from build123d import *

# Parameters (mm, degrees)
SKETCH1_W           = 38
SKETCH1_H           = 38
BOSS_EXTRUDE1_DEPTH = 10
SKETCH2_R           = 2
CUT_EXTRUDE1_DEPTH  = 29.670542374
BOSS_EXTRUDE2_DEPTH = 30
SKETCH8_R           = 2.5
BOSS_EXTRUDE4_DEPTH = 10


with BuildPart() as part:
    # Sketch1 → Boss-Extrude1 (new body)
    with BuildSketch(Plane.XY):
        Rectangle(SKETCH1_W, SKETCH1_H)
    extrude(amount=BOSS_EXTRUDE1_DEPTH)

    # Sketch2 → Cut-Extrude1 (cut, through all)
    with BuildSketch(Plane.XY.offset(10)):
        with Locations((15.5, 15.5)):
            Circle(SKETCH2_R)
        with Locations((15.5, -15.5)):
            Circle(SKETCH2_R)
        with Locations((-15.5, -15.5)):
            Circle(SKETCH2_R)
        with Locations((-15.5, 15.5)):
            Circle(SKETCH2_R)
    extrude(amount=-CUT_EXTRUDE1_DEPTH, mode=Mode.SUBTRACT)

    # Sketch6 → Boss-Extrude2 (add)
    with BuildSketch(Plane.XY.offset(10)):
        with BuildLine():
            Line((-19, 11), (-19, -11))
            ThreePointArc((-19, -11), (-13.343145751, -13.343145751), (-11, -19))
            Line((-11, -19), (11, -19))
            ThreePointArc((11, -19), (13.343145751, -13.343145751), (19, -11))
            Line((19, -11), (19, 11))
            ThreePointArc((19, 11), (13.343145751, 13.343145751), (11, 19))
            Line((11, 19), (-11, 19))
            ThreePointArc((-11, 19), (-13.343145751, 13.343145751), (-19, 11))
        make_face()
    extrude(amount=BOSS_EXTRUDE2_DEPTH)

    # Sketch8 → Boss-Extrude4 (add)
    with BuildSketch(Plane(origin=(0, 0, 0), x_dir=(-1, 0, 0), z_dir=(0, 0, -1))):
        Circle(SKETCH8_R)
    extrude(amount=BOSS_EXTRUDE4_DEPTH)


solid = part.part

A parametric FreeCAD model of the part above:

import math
import FreeCAD as App
import Part
import Sketcher
from FreeCAD import Vector
Q = App.Units.Quantity

doc = App.newDocument("Part")
params = doc.addObject("Spreadsheet::Sheet", "Params")
for row, (alias, value) in enumerate([
    ("sketch1_width", "38 mm"),
    ("pad1_length", "10 mm"),
    ("sketch2_diameter", "4 mm"),
    ("sketch3_radius", "8 mm"),
    ("sketch3_width", "22 mm"),
    ("pad2_length", "30 mm"),
    ("sketch4_diameter", "5 mm"),
    ("pad3_length", "10 mm"),
], start=1):
    params.set(f"A{row}", alias)
    params.set(f"B{row}", "=" + value)
    params.setAlias(f"B{row}", alias)

body = doc.addObject("PartDesign::Body", "Body")

# Sketch on XY plane
sketch1 = doc.addObject("Sketcher::SketchObject", "Sketch")
body.addObject(sketch1)
sketch1.AttachmentSupport = (doc.XY_Plane, [""])
sketch1.MapMode = "FlatFace"
sketch1.addGeometry(Part.LineSegment(Vector(-19, 19, 0), Vector(-19, -19, 0)), False)
sketch1.addGeometry(Part.LineSegment(Vector(-19, -19, 0), Vector(19, -19, 0)), False)
sketch1.addGeometry(Part.LineSegment(Vector(19, -19, 0), Vector(19, 19, 0)), False)
sketch1.addGeometry(Part.LineSegment(Vector(19, 19, 0), Vector(-19, 19, 0)), False)
sketch1.addConstraint(Sketcher.Constraint("Coincident", 0, 2, 1, 1))
sketch1.addConstraint(Sketcher.Constraint("Coincident", 1, 2, 2, 1))
sketch1.addConstraint(Sketcher.Constraint("Coincident", 2, 2, 3, 1))
sketch1.addConstraint(Sketcher.Constraint("Coincident", 3, 2, 0, 1))
sketch1.addConstraint(Sketcher.Constraint("Vertical", 0))
sketch1.addConstraint(Sketcher.Constraint("Horizontal", 1))
sketch1.addConstraint(Sketcher.Constraint("Vertical", 2))
sketch1.addConstraint(Sketcher.Constraint("Horizontal", 3))
sketch1.addConstraint(Sketcher.Constraint("Symmetric", 0, 2, 2, 2, -1, 1))
sketch1.addConstraint(Sketcher.Constraint("Equal", 3, 0))
sketch1.addConstraint(Sketcher.Constraint("DistanceX", 1, 1, 1, 2, Q("38 mm")))
sketch1.setExpression("Constraints[10]", "Params.sketch1_width")
pad1 = doc.addObject("PartDesign::Pad", "Pad")
body.addObject(pad1)
pad1.Profile = sketch1
pad1.setExpression("Length", "Params.pad1_length")

# Sketch on XY plane
sketch2 = doc.addObject("Sketcher::SketchObject", "Sketch001")
body.addObject(sketch2)
sketch2.AttachmentSupport = (doc.XY_Plane, [""])
sketch2.MapMode = "FlatFace"
sketch2.AttachmentOffset = App.Placement(Vector(0, 0, 10), App.Rotation())
sketch2.addGeometry(Part.Circle(Vector(15.5, 15.5, 0), Vector(0, 0, 1), 2), False)
sketch2.addGeometry(Part.Circle(Vector(15.5, -15.5, 0), Vector(0, 0, 1), 2), False)
sketch2.addGeometry(Part.Circle(Vector(-15.5, -15.5, 0), Vector(0, 0, 1), 2), False)
sketch2.addGeometry(Part.Circle(Vector(-15.5, 15.5, 0), Vector(0, 0, 1), 2), False)
sketch2.addConstraint(Sketcher.Constraint("Equal", 0, 1))
sketch2.addConstraint(Sketcher.Constraint("Equal", 1, 2))
sketch2.addConstraint(Sketcher.Constraint("Equal", 2, 3))
sketch2.addConstraint(Sketcher.Constraint("Symmetric", 0, 3, 2, 3, -1, 1))
sketch2.addConstraint(Sketcher.Constraint("Symmetric", 1, 3, 3, 3, -1, 1))
sketch2.addConstraint(Sketcher.Constraint("Symmetric", 1, 3, 2, 3, -2))
sketch2.addConstraint(Sketcher.Constraint("Diameter", 0, Q("4 mm")))
sketch2.addConstraint(Sketcher.Constraint("DistanceY", 1, 3, 0, 3, Q("31 mm")))
sketch2.addConstraint(Sketcher.Constraint("DistanceX", 2, 3, 1, 3, Q("31 mm")))
sketch2.setExpression("Constraints[6]", "Params.sketch2_diameter")
pocket1 = doc.addObject("PartDesign::Pocket", "Pocket")
body.addObject(pocket1)
pocket1.Profile = sketch2
pocket1.Type = "ThroughAll"

# Sketch on XY plane
sketch3 = doc.addObject("Sketcher::SketchObject", "Sketch002")
body.addObject(sketch3)
sketch3.AttachmentSupport = (doc.XY_Plane, [""])
sketch3.MapMode = "FlatFace"
sketch3.AttachmentOffset = App.Placement(Vector(0, 0, 10), App.Rotation())
sketch3.addGeometry(Part.LineSegment(Vector(-19, 11, 0), Vector(-19, -11, 0)), False)
sketch3.addGeometry(Part.ArcOfCircle(Part.Circle(Vector(-19, -19, 0), Vector(0, 0, 1), 8), math.radians(0), math.radians(90)), False)
sketch3.addGeometry(Part.LineSegment(Vector(-11, -19, 0), Vector(11, -19, 0)), False)
sketch3.addGeometry(Part.ArcOfCircle(Part.Circle(Vector(19, -19, 0), Vector(0, 0, 1), 8), math.radians(90), math.radians(180)), False)
sketch3.addGeometry(Part.LineSegment(Vector(19, -11, 0), Vector(19, 11, 0)), False)
sketch3.addGeometry(Part.ArcOfCircle(Part.Circle(Vector(19, 19, 0), Vector(0, 0, 1), 8), math.radians(-180), math.radians(-90)), False)
sketch3.addGeometry(Part.LineSegment(Vector(11, 19, 0), Vector(-11, 19, 0)), False)
sketch3.addGeometry(Part.ArcOfCircle(Part.Circle(Vector(-19, 19, 0), Vector(0, 0, 1), 8), math.radians(-90), math.radians(0)), False)
sketch3.addConstraint(Sketcher.Constraint("Coincident", 0, 2, 1, 2))
sketch3.addConstraint(Sketcher.Constraint("Coincident", 1, 1, 2, 1))
sketch3.addConstraint(Sketcher.Constraint("Coincident", 2, 2, 3, 2))
sketch3.addConstraint(Sketcher.Constraint("Coincident", 3, 1, 4, 1))
sketch3.addConstraint(Sketcher.Constraint("Coincident", 4, 2, 5, 2))
sketch3.addConstraint(Sketcher.Constraint("Coincident", 5, 1, 6, 1))
sketch3.addConstraint(Sketcher.Constraint("Coincident", 6, 2, 7, 2))
sketch3.addConstraint(Sketcher.Constraint("Coincident", 7, 1, 0, 1))
sketch3.addConstraint(Sketcher.Constraint("Vertical", 0))
sketch3.addConstraint(Sketcher.Constraint("Horizontal", 2))
sketch3.addConstraint(Sketcher.Constraint("Vertical", 4))
sketch3.addConstraint(Sketcher.Constraint("Horizontal", 6))
sketch3.addConstraint(Sketcher.Constraint("Equal", 1, 3))
sketch3.addConstraint(Sketcher.Constraint("Equal", 3, 5))
sketch3.addConstraint(Sketcher.Constraint("Equal", 5, 7))
sketch3.addConstraint(Sketcher.Constraint("Symmetric", 1, 3, 5, 3, -1, 1))
sketch3.addConstraint(Sketcher.Constraint("Symmetric", 3, 3, 7, 3, -1, 1))
sketch3.addConstraint(Sketcher.Constraint("Symmetric", 1, 3, 3, 3, -2))
sketch3.addConstraint(Sketcher.Constraint("Horizontal", 3, 3, 1, 1))
sketch3.addConstraint(Sketcher.Constraint("Horizontal", 7, 3, 5, 1))
sketch3.addConstraint(Sketcher.Constraint("Vertical", 7, 3, 0, 2))
sketch3.addConstraint(Sketcher.Constraint("Vertical", 5, 3, 3, 1))
sketch3.addConstraint(Sketcher.Constraint("Equal", 6, 0))
sketch3.addConstraint(Sketcher.Constraint("Radius", 1, Q("8 mm")))
sketch3.addConstraint(Sketcher.Constraint("DistanceX", 2, 1, 2, 2, Q("22 mm")))
sketch3.setExpression("Constraints[23]", "Params.sketch3_radius")
sketch3.setExpression("Constraints[24]", "Params.sketch3_width")
pad2 = doc.addObject("PartDesign::Pad", "Pad001")
body.addObject(pad2)
pad2.Profile = sketch3
pad2.setExpression("Length", "Params.pad2_length")

# Sketch on XY plane
sketch4 = doc.addObject("Sketcher::SketchObject", "Sketch003")
body.addObject(sketch4)
sketch4.AttachmentSupport = (doc.XY_Plane, [""])
sketch4.MapMode = "FlatFace"
sketch4.addGeometry(Part.Circle(Vector(0, 0, 0), Vector(0, 0, 1), 2.5), False)
sketch4.addConstraint(Sketcher.Constraint("Coincident", 0, 3, -1, 1))
sketch4.addConstraint(Sketcher.Constraint("Diameter", 0, Q("5 mm")))
sketch4.setExpression("Constraints[1]", "Params.sketch4_diameter")
pad3 = doc.addObject("PartDesign::Pad", "Pad002")
body.addObject(pad3)
pad3.Profile = sketch4
pad3.setExpression("Length", "Params.pad3_length")
pad3.Reversed = True

doc.recompute()
